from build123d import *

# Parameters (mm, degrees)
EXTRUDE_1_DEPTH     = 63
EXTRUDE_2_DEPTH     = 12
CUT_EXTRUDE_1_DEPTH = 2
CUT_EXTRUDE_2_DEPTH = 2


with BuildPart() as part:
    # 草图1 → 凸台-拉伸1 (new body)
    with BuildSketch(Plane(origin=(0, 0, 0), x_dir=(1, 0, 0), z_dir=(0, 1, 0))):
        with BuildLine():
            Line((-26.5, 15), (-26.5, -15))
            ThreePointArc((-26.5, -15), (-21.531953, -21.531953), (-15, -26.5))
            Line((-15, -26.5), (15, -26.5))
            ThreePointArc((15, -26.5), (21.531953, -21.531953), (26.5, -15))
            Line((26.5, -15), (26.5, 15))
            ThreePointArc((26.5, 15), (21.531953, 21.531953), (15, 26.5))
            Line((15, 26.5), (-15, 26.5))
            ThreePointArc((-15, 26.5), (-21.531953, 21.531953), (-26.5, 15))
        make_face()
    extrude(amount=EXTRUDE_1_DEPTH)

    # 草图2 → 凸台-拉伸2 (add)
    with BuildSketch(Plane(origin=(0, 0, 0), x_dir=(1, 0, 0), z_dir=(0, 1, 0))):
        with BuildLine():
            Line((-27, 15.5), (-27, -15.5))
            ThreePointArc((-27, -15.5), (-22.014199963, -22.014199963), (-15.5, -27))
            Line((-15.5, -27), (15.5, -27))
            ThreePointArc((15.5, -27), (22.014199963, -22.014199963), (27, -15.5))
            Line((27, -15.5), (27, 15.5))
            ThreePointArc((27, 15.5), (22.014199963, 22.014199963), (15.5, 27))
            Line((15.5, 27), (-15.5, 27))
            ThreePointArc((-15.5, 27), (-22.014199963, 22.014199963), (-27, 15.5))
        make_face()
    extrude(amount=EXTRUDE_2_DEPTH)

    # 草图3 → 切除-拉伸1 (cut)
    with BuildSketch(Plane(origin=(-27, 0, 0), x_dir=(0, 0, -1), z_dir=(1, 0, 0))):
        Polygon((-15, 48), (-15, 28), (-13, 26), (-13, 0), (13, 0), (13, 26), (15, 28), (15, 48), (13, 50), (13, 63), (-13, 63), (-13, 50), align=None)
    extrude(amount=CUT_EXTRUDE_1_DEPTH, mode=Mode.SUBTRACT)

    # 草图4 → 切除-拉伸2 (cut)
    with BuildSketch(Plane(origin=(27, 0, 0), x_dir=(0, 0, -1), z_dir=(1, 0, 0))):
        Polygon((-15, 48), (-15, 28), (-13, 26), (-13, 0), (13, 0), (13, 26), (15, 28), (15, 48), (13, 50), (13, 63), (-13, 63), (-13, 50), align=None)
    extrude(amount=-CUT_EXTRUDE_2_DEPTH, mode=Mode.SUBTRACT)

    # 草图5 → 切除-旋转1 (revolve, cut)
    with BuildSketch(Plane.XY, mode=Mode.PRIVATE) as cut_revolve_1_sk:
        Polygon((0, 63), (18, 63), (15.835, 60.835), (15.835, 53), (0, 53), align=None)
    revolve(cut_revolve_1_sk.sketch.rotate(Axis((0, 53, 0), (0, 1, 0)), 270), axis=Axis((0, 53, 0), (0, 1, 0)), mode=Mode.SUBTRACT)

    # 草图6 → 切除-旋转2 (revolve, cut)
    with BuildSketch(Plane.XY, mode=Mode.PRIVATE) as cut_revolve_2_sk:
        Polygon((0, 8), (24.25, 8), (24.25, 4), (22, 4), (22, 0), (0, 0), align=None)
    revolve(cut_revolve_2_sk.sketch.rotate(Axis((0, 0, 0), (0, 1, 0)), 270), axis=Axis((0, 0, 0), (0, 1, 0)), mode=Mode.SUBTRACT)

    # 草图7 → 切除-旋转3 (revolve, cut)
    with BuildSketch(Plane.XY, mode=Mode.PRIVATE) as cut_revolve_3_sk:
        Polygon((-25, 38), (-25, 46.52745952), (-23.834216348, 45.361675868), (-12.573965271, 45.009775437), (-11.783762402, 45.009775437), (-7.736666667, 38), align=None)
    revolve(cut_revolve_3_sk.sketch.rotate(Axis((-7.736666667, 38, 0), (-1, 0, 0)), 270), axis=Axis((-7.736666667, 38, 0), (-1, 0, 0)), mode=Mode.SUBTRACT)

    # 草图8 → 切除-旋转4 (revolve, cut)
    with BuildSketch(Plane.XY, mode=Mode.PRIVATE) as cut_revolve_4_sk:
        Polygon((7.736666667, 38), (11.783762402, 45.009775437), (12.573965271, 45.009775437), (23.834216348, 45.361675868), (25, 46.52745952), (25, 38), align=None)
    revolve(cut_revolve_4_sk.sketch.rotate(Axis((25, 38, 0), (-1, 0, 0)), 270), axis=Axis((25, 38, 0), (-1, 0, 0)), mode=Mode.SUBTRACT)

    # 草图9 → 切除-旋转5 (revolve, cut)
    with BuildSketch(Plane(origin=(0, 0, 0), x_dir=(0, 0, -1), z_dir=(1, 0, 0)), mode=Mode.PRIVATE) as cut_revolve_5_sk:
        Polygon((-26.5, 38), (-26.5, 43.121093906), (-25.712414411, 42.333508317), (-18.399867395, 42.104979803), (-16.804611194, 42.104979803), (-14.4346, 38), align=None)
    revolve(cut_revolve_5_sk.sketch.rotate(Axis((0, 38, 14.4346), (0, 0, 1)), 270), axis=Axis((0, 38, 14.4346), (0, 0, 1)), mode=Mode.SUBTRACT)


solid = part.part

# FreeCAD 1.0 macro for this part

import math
import FreeCAD as App
import Part
import Sketcher
from FreeCAD import Vector
Q = App.Units.Quantity


def add_polygon(sketch, points):
    """Adds a closed chain of lines whose ends are joined by coincident constraints."""
    first, n = sketch.GeometryCount, len(points)
    for a, b in zip(points, points[1:] + points[:1]):
        sketch.addGeometry(Part.LineSegment(App.Vector(*a, 0), App.Vector(*b, 0)), False)
    for i in range(n):
        sketch.addConstraint(Sketcher.Constraint("Coincident", first + i, 2, first + (i + 1) % n, 1))

doc = App.newDocument("Part")
body = doc.addObject("PartDesign::Body", "Body")

# Sketch on XZ plane
sketch1 = body.newObject("Sketcher::SketchObject", "Sketch")
sketch1.AttachmentSupport = (doc.getObject("XZ_Plane"), [""])
sketch1.MapMode = "FlatFace"
sketch1.addGeometry([
    Part.LineSegment(Vector(-26, -15, 0), Vector(-26, 15, 0)),  # 0
    Part.ArcOfCircle(Part.Circle(Vector(0, 0, 0), Vector(0, 0, 1), 30), math.radians(120), math.radians(150)),  # 1
    Part.LineSegment(Vector(-15, 26, 0), Vector(15, 26, 0)),  # 2
    Part.ArcOfCircle(Part.Circle(Vector(0, 0, 0), Vector(0, 0, 1), 30), math.radians(30), math.radians(60)),  # 3
    Part.LineSegment(Vector(26, 15, 0), Vector(26, -15, 0)),  # 4
    Part.ArcOfCircle(Part.Circle(Vector(0, 0, 0), Vector(0, 0, 1), 30), math.radians(-60), math.radians(-30)),  # 5
    Part.LineSegment(Vector(15, -26, 0), Vector(-15, -26, 0)),  # 6
    Part.ArcOfCircle(Part.Circle(Vector(0, 0, 0), Vector(0, 0, 1), 30), math.radians(-150), math.radians(-120)),  # 7
], False)
sketch1.addConstraint([
    Sketcher.Constraint("Coincident", 0, 2, 1, 2),
    Sketcher.Constraint("Coincident", 1, 1, 2, 1),
    Sketcher.Constraint("Coincident", 2, 2, 3, 2),
    Sketcher.Constraint("Coincident", 3, 1, 4, 1),
    Sketcher.Constraint("Coincident", 4, 2, 5, 2),
    Sketcher.Constraint("Coincident", 5, 1, 6, 1),
    Sketcher.Constraint("Coincident", 6, 2, 7, 2),
    Sketcher.Constraint("Coincident", 7, 1, 0, 1),
    Sketcher.Constraint("Vertical", 0),
    Sketcher.Constraint("Horizontal", 2),
    Sketcher.Constraint("Vertical", 4),
    Sketcher.Constraint("Horizontal", 6),
    Sketcher.Constraint("Coincident", 1, 3, -1, 1),
    Sketcher.Constraint("Coincident", 3, 3, -1, 1),
    Sketcher.Constraint("Coincident", 5, 3, -1, 1),
    Sketcher.Constraint("Coincident", 7, 3, -1, 1),
    Sketcher.Constraint("Equal", 1, 3),
    Sketcher.Constraint("Equal", 3, 5),
    Sketcher.Constraint("Equal", 5, 7),
    Sketcher.Constraint("Horizontal", 0, 2, 3, 1),
    Sketcher.Constraint("Vertical", 2, 2, 5, 1),
    Sketcher.Constraint("Equal", 6, 0),
    Sketcher.Constraint("DistanceX", 2, 1, 2, 2, Q("30 mm")),
    Sketcher.Constraint("DistanceX", 0, 2, -1, 1, Q("26.5 mm")),
])
pad1 = body.newObject("PartDesign::Pad", "Pad")
pad1.Profile = sketch1
pad1.Length = 63
pad1.Reversed = True

# Sketch on XZ plane
sketch2 = body.newObject("Sketcher::SketchObject", "Sketch001")
sketch2.AttachmentSupport = (doc.getObject("XZ_Plane"), [""])
sketch2.MapMode = "FlatFace"
sketch2.addGeometry([
    Part.LineSegment(Vector(-27, -16, 0), Vector(-27, 16, 0)),  # 0
    Part.ArcOfCircle(Part.Circle(Vector(0, 0, 0), Vector(0, 0, 1), 31), math.radians(120), math.radians(150)),  # 1
    Part.LineSegment(Vector(-16, 27, 0), Vector(16, 27, 0)),  # 2
    Part.ArcOfCircle(Part.Circle(Vector(0, 0, 0), Vector(0, 0, 1), 31), math.radians(30), math.radians(60)),  # 3
    Part.LineSegment(Vector(27, 16, 0), Vector(27, -16, 0)),  # 4
    Part.ArcOfCircle(Part.Circle(Vector(0, 0, 0), Vector(0, 0, 1), 31), math.radians(-60), math.radians(-30)),  # 5
    Part.LineSegment(Vector(16, -27, 0), Vector(-16, -27, 0)),  # 6
    Part.ArcOfCircle(Part.Circle(Vector(0, 0, 0), Vector(0, 0, 1), 31), math.radians(-150), math.radians(-120)),  # 7
], False)
sketch2.addConstraint([
    Sketcher.Constraint("Coincident", 0, 2, 1, 2),
    Sketcher.Constraint("Coincident", 1, 1, 2, 1),
    Sketcher.Constraint("Coincident", 2, 2, 3, 2),
    Sketcher.Constraint("Coincident", 3, 1, 4, 1),
    Sketcher.Constraint("Coincident", 4, 2, 5, 2),
    Sketcher.Constraint("Coincident", 5, 1, 6, 1),
    Sketcher.Constraint("Coincident", 6, 2, 7, 2),
    Sketcher.Constraint("Coincident", 7, 1, 0, 1),
    Sketcher.Constraint("Vertical", 0),
    Sketcher.Constraint("Horizontal", 2),
    Sketcher.Constraint("Vertical", 4),
    Sketcher.Constraint("Horizontal", 6),
    Sketcher.Constraint("Coincident", 1, 3, -1, 1),
    Sketcher.Constraint("Coincident", 3, 3, -1, 1),
    Sketcher.Constraint("Coincident", 5, 3, -1, 1),
    Sketcher.Constraint("Coincident", 7, 3, -1, 1),
    Sketcher.Constraint("Equal", 1, 3),
    Sketcher.Constraint("Equal", 3, 5),
    Sketcher.Constraint("Equal", 5, 7),
    Sketcher.Constraint("Horizontal", 0, 2, 3, 1),
    Sketcher.Constraint("Vertical", 2, 2, 5, 1),
    Sketcher.Constraint("Equal", 6, 0),
    Sketcher.Constraint("DistanceX", 2, 1, 2, 2, Q("31 mm")),
    Sketcher.Constraint("DistanceX", 0, 2, -1, 1, Q("27 mm")),
])
pad2 = body.newObject("PartDesign::Pad", "Pad001")
pad2.Profile = sketch2
pad2.Length = 12
pad2.Reversed = True

# Sketch on YZ plane
sketch3 = body.newObject("Sketcher::SketchObject", "Sketch002")
sketch3.AttachmentSupport = (doc.getObject("YZ_Plane"), [""])
sketch3.MapMode = "FlatFace"
sketch3.AttachmentOffset = App.Placement(Vector(0, 0, -27), App.Rotation())
add_polygon(sketch3, [(48, 15), (28, 15), (26, 13), (0, 13), (0, -13), (26, -13), (28, -15), (48, -15), (50, -13), (63, -13), (63, 13), (50, 13)])  # lines 0-11
sketch3.addConstraint([
    Sketcher.Constraint("Horizontal", 0),
    Sketcher.Constraint("Horizontal", 2),
    Sketcher.Constraint("Vertical", 3),
    Sketcher.Constraint("Horizontal", 4),
    Sketcher.Constraint("Horizontal", 6),
    Sketcher.Constraint("Horizontal", 8),
    Sketcher.Constraint("Vertical", 9),
    Sketcher.Constraint("Horizontal", 10),
    Sketcher.Constraint("Symmetric", 2, 2, 3, 2, -1, 1),
    Sketcher.Constraint("Symmetric", 0, 2, 5, 2, -1),
    Sketcher.Constraint("Symmetric", 7, 2, 10, 2, -1),
    Sketcher.Constraint("Perpendicular", 1, 5),
    Sketcher.Constraint("Perpendicular", 5, 7),
    Sketcher.Constraint("Perpendicular", 7, 11),
    Sketcher.Constraint("Horizontal", 4, 2, 7, 2),
    Sketcher.Constraint("Vertical", 1, 2, 4, 2),
    Sketcher.Constraint("Equal", 4, 3),
    Sketcher.Constraint("DistanceX", 0, 2, 0, 1, Q("20 mm")),
    Sketcher.Constraint("DistanceX", 2, 2, 2, 1, Q("26 mm")),
    Sketcher.Constraint("DistanceX", 8, 1, 8, 2, Q("13 mm")),
    Sketcher.Constraint("DistanceX", -1, 1, 0, 2, Q("28 mm")),
])
pocket1 = body.newObject("PartDesign::Pocket", "Pocket")
pocket1.Profile = sketch3
pocket1.Length = 2
pocket1.Reversed = True

# Sketch on YZ plane
sketch4 = body.newObject("Sketcher::SketchObject", "Sketch003")
sketch4.AttachmentSupport = (doc.getObject("YZ_Plane"), [""])
sketch4.MapMode = "FlatFace"
sketch4.AttachmentOffset = App.Placement(Vector(0, 0, 27), App.Rotation())
add_polygon(sketch4, [(48, 15), (28, 15), (26, 13), (0, 13), (0, -13), (26, -13), (28, -15), (48, -15), (50, -13), (63, -13), (63, 13), (50, 13)])  # lines 0-11
sketch4.addConstraint([
    Sketcher.Constraint("Horizontal", 0),
    Sketcher.Constraint("Horizontal", 2),
    Sketcher.Constraint("Vertical", 3),
    Sketcher.Constraint("Horizontal", 4),
    Sketcher.Constraint("Horizontal", 6),
    Sketcher.Constraint("Horizontal", 8),
    Sketcher.Constraint("Vertical", 9),
    Sketcher.Constraint("Horizontal", 10),
    Sketcher.Constraint("Symmetric", 2, 2, 3, 2, -1, 1),
    Sketcher.Constraint("Symmetric", 0, 2, 5, 2, -1),
    Sketcher.Constraint("Symmetric", 7, 2, 10, 2, -1),
    Sketcher.Constraint("Perpendicular", 1, 5),
    Sketcher.Constraint("Perpendicular", 5, 7),
    Sketcher.Constraint("Perpendicular", 7, 11),
    Sketcher.Constraint("Horizontal", 4, 2, 7, 2),
    Sketcher.Constraint("Vertical", 1, 2, 4, 2),
    Sketcher.Constraint("Equal", 4, 3),
    Sketcher.Constraint("DistanceX", 0, 2, 0, 1, Q("20 mm")),
    Sketcher.Constraint("DistanceX", 2, 2, 2, 1, Q("26 mm")),
    Sketcher.Constraint("DistanceX", 8, 1, 8, 2, Q("13 mm")),
    Sketcher.Constraint("DistanceX", -1, 1, 0, 2, Q("28 mm")),
])
pocket2 = body.newObject("PartDesign::Pocket", "Pocket001")
pocket2.Profile = sketch4
pocket2.Length = 2

# Sketch on XY plane
sketch5 = body.newObject("Sketcher::SketchObject", "Sketch004")
sketch5.AttachmentSupport = (doc.getObject("XY_Plane"), [""])
sketch5.MapMode = "FlatFace"
add_polygon(sketch5, [(18, 63), (0, 63), (0, 53), (15.8, 53), (15.8, 60.8)])  # lines 0-4
sketch5.addConstraint([
    Sketcher.Constraint("Horizontal", 0),
    Sketcher.Constraint("Vertical", 1),
    Sketcher.Constraint("Horizontal", 2),
    Sketcher.Constraint("Vertical", 3),
    Sketcher.Constraint("PointOnObject", 0, 2, -2),
    Sketcher.Constraint("DistanceX", 0, 2, 0, 1, Q("18 mm")),
    Sketcher.Constraint("DistanceY", 1, 2, 1, 1, Q("10 mm")),
    Sketcher.Constraint("Angle", 4, Q("45 deg")),
    Sketcher.Constraint("DistanceY", -1, 1, 0, 2, Q("63 mm")),
    Sketcher.Constraint("DistanceX", 2, 1, 2, 2, Q("15.835 mm")),
])
groove = body.newObject("PartDesign::Groove", "Groove")
groove.Profile = sketch5
groove.ReferenceAxis = (sketch5, ["V_Axis"])
groove.Angle = 360

# Sketch on XY plane
sketch6 = body.newObject("Sketcher::SketchObject", "Sketch005")
sketch6.AttachmentSupport = (doc.getObject("XY_Plane"), [""])
sketch6.MapMode = "FlatFace"
add_polygon(sketch6, [(24.2, 8), (0, 8), (0, 0), (22, 0), (22, 4), (24.2, 4)])  # lines 0-5
sketch6.addConstraint([
    Sketcher.Constraint("Horizontal", 0),
    Sketcher.Constraint("Vertical", 1),
    Sketcher.Constraint("Horizontal", 2),
    Sketcher.Constraint("Vertical", 3),
    Sketcher.Constraint("Horizontal", 4),
    Sketcher.Constraint("Vertical", 5),
    Sketcher.Constraint("Coincident", 1, 2, -1, 1),
    Sketcher.Constraint("Equal", 3, 5),
    Sketcher.Constraint("DistanceX", 2, 1, 2, 2, Q("22 mm")),
    Sketcher.Constraint("DistanceY", 1, 2, 1, 1, Q("8 mm")),
    Sketcher.Constraint("DistanceX", 0, 2, 0, 1, Q("24.25 mm")),
])
groove2 = body.newObject("PartDesign::Groove", "Groove001")
groove2.Profile = sketch6
groove2.ReferenceAxis = (sketch6, ["V_Axis"])
groove2.Angle = 360

# Sketch on XY plane
sketch7 = body.newObject("Sketcher::SketchObject", "Sketch006")
sketch7.AttachmentSupport = (doc.getObject("XY_Plane"), [""])
sketch7.MapMode = "FlatFace"
add_polygon(sketch7, [(-25, 46.5), (-25, 38), (-7.7, 38), (-11.8, 45), (-12.6, 45), (-23.8, 45.4)])  # lines 0-5
sketch7.addGeometry(Part.LineSegment(Vector(-7.7, 38, 0), Vector(-25, 38, 0)), True)  # axis
sketch7.addConstraint([
    Sketcher.Constraint("Vertical", 0),
    Sketcher.Constraint("Horizontal", 1),
    Sketcher.Constraint("Horizontal", 3),
    Sketcher.Constraint("Horizontal", 6),
    Sketcher.Constraint("Coincident", 6, 1, 1, 2),
    Sketcher.Constraint("Vertical", 5, 2, 6, 2),
    Sketcher.Constraint("Angle", 2, Q("120 deg")),
    Sketcher.Constraint("Angle", 5, Q("135 deg")),
    Sketcher.Constraint("DistanceX", 0, 2, -1, 1, Q("25 mm")),
    Sketcher.Constraint("DistanceY", -1, 1, 0, 2, Q("38 mm")),
    Sketcher.Constraint("Angle", 4, Q("178.21 deg")),
    Sketcher.Constraint("DistanceY", 0, 2, 0, 1, Q("8.52746 mm")),
    Sketcher.Constraint("DistanceX", 3, 2, 1, 2, Q("4.837299 mm")),
    Sketcher.Constraint("DistanceY", 3, 2, 4, 2, Q("0.3519 mm")),
    Sketcher.Constraint("Distance", 2, Q("8.094191 mm")),
])
groove3 = body.newObject("PartDesign::Groove", "Groove002")
groove3.Profile = sketch7
groove3.ReferenceAxis = (sketch7, ["Axis0"])
groove3.Angle = 360

# Sketch on XY plane
sketch8 = body.newObject("Sketcher::SketchObject", "Sketch007")
sketch8.AttachmentSupport = (doc.getObject("XY_Plane"), [""])
sketch8.MapMode = "FlatFace"
add_polygon(sketch8, [(11.8, 45), (7.7, 38), (25, 38), (25, 46.5), (23.8, 45.4), (12.6, 45)])  # lines 0-5
sketch8.addGeometry(Part.LineSegment(Vector(25, 38, 0), Vector(7.7, 38, 0)), True)  # axis
sketch8.addConstraint([
    Sketcher.Constraint("Horizontal", 1),
    Sketcher.Constraint("Vertical", 2),
    Sketcher.Constraint("Horizontal", 5),
    Sketcher.Constraint("Horizontal", 6),
    Sketcher.Constraint("Coincident", 6, 1, 1, 2),
    Sketcher.Constraint("Equal", 1, 6),
    Sketcher.Constraint("Angle", 0, Q("-120 deg")),
    Sketcher.Constraint("Angle", 3, Q("-135 deg")),
    Sketcher.Constraint("DistanceY", -1, 1, 0, 2, Q("38 mm")),
    Sketcher.Constraint("DistanceX", -1, 1, 1, 2, Q("25 mm")),
    Sketcher.Constraint("Angle", 4, Q("-178.21 deg")),
    Sketcher.Constraint("DistanceY", 2, 1, 2, 2, Q("8.52746 mm")),
    Sketcher.Constraint("DistanceX", 0, 2, 4, 2, Q("4.837299 mm")),
    Sketcher.Constraint("DistanceY", 4, 2, 3, 2, Q("0.3519 mm")),
    Sketcher.Constraint("Distance", 0, Q("8.094191 mm")),
])
groove4 = body.newObject("PartDesign::Groove", "Groove003")
groove4.Profile = sketch8
groove4.ReferenceAxis = (sketch8, ["Axis0"])
groove4.Angle = 360

# Sketch on YZ plane
sketch9 = body.newObject("Sketcher::SketchObject", "Sketch008")
sketch9.AttachmentSupport = (doc.getObject("YZ_Plane"), [""])
sketch9.MapMode = "FlatFace"
add_polygon(sketch9, [(43.1, 26.5), (38, 26.5), (38, 14.4), (42.1, 16.8), (42.1, 18.4), (42.3, 25.7)])  # lines 0-5
sketch9.addGeometry(Part.LineSegment(Vector(38, 14.4, 0), Vector(38, 26.5, 0)), True)  # axis
sketch9.addConstraint([
    Sketcher.Constraint("Horizontal", 0),
    Sketcher.Constraint("Vertical", 1),
    Sketcher.Constraint("Vertical", 3),
    Sketcher.Constraint("Vertical", 6),
    Sketcher.Constraint("Coincident", 6, 1, 1, 2),
    Sketcher.Constraint("Horizontal", 5, 2, 6, 2),
    Sketcher.Constraint("Angle", 2, Q("30 deg")),
    Sketcher.Constraint("Angle", 5, Q("45 deg")),
    Sketcher.Constraint("DistanceX", -1, 1, 0, 2, Q("38 mm")),
    Sketcher.Constraint("DistanceY", -1, 1, 0, 2, Q("26.5 mm")),
    Sketcher.Constraint("Angle", 4, Q("88.21 deg")),
    Sketcher.Constraint("DistanceY", 1, 2, 1, 1, Q("12.0654 mm")),
    Sketcher.Constraint("DistanceX", 0, 2, 0, 1, Q("5.121094 mm")),
    Sketcher.Constraint("DistanceY", 3, 1, 3, 2, Q("1.595256 mm")),
    Sketcher.Constraint("DistanceX", -1, 1, 2, 2, Q("42.10498 mm")),
])
groove5 = body.newObject("PartDesign::Groove", "Groove004")
groove5.Profile = sketch9
groove5.ReferenceAxis = (sketch9, ["Axis0"])
groove5.Angle = 360

doc.recompute()
